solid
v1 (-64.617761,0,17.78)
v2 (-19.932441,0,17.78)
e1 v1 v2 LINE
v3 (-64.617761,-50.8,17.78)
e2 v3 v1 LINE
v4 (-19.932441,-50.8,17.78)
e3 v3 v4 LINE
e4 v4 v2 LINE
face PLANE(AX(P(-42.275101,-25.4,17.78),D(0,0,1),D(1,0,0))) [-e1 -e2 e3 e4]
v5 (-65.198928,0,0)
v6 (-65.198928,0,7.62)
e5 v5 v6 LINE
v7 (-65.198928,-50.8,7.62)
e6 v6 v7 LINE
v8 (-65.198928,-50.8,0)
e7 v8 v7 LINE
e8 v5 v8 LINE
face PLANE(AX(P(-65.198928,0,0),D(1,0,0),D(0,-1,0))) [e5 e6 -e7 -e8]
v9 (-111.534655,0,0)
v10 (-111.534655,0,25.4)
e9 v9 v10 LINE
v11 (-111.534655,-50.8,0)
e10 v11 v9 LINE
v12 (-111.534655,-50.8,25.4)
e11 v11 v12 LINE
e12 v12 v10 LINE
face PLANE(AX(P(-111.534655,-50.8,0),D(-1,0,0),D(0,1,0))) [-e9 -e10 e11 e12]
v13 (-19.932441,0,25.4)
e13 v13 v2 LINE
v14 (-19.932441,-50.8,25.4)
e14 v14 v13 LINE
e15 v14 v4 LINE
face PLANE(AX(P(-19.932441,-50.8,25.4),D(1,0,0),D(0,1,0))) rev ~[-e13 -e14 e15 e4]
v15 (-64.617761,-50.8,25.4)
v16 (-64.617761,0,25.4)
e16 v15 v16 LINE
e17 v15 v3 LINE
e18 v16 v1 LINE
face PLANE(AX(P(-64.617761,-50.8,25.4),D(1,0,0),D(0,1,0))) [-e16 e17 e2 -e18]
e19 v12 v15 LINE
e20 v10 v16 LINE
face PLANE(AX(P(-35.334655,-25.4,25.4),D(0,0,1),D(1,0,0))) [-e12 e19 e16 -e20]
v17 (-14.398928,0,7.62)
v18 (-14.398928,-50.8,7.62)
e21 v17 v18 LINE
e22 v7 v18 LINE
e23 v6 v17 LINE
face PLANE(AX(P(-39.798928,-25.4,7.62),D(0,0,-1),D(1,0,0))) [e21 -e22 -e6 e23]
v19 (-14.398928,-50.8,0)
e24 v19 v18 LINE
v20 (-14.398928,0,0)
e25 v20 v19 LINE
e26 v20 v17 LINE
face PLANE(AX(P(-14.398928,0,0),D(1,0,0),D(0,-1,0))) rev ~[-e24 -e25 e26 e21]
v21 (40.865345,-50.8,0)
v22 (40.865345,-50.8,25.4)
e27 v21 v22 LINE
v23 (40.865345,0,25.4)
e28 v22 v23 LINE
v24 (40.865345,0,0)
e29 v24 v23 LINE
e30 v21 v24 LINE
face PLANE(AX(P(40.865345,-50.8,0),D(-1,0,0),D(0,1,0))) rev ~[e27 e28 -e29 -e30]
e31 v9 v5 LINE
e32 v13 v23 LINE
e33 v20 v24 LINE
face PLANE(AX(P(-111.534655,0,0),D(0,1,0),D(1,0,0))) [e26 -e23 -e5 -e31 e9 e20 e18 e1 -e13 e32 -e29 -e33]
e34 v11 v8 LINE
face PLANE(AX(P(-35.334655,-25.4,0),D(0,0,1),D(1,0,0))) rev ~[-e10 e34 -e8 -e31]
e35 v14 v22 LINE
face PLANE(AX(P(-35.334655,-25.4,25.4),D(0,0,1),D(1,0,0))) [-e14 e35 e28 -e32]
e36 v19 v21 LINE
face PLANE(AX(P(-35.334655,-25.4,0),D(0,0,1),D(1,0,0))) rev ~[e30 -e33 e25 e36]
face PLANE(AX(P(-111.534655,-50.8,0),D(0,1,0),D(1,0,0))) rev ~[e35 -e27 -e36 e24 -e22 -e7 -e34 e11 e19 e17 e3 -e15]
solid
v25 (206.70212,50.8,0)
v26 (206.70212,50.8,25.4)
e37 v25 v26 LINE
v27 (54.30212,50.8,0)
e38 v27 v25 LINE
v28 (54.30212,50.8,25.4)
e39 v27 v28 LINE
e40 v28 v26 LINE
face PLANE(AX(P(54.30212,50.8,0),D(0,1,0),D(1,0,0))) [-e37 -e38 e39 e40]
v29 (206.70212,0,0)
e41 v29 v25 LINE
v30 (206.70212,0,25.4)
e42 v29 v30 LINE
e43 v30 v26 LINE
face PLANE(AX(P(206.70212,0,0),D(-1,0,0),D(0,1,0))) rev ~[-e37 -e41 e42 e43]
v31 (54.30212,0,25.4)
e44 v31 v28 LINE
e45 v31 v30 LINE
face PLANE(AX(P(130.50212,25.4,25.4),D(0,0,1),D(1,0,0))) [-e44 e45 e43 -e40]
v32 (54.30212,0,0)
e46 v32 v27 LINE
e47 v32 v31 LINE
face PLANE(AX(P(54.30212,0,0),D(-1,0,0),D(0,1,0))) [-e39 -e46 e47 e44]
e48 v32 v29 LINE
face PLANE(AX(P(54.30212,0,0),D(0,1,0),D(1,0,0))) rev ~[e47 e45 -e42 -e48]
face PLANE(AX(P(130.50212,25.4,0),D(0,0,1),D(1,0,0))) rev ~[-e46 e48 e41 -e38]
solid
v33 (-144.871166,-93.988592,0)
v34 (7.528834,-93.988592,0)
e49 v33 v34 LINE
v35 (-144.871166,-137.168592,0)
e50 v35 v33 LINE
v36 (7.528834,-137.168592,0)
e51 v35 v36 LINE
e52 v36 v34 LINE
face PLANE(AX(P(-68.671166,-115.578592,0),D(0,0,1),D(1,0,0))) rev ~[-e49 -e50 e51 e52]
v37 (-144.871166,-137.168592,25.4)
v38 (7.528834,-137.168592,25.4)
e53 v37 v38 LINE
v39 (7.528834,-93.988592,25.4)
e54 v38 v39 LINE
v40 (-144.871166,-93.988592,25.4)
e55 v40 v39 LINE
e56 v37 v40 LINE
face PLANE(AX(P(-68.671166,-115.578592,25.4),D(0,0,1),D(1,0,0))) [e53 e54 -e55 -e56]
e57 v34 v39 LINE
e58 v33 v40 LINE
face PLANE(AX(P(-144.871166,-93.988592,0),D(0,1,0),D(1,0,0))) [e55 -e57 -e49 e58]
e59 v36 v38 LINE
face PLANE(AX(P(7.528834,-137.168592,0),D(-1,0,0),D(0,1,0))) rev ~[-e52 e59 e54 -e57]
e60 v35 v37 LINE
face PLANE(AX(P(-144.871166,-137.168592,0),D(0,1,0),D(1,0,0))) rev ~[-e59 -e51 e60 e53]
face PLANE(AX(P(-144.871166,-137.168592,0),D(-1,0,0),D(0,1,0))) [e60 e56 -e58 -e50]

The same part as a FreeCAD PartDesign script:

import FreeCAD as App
import Part
import Sketcher
from FreeCAD import Vector
Q = App.Units.Quantity


def add_polygon(sketch, points):
    """Adds a closed chain of lines whose ends are joined by coincident constraints."""
    first, n = sketch.GeometryCount, len(points)
    for a, b in zip(points, points[1:] + points[:1]):
        sketch.addGeometry(Part.LineSegment(App.Vector(*a, 0), App.Vector(*b, 0)), False)
    for i in range(n):
        sketch.addConstraint(Sketcher.Constraint("Coincident", first + i, 2, first + (i + 1) % n, 1))

doc = App.newDocument("Part")
body = doc.addObject("PartDesign::Body", "Body")

sketch1 = body.newObject("Sketcher::SketchObject", "Sketch")
sketch1.AttachmentSupport = (doc.getObject("XY_Plane"), [""])
sketch1.MapMode = "FlatFace"
add_polygon(sketch1, [(-112, 0), (-112, -51), (41, -51), (41, 0)])
sketch1.addConstraint(Sketcher.Constraint("Vertical", 0))
sketch1.addConstraint(Sketcher.Constraint("Horizontal", 1))
sketch1.addConstraint(Sketcher.Constraint("Vertical", 2))
sketch1.addConstraint(Sketcher.Constraint("Horizontal", 3))
sketch1.addConstraint(Sketcher.Constraint("PointOnObject", 2, 2, -1))
sketch1.addConstraint(Sketcher.Constraint("DistanceX", 1, 1, 1, 2, Q("6 in")))
sketch1.addConstraint(Sketcher.Constraint("DistanceY", 0, 2, 0, 1, Q("2 in")))
sketch1.addConstraint(Sketcher.Constraint("DistanceX", 0, 2, -1, 1, 111.534655))
pad1 = body.newObject("PartDesign::Pad", "Pad")
pad1.Profile = sketch1
pad1.Length = Q("1 in")

sketch2 = body.newObject("Sketcher::SketchObject", "Sketch001")
sketch2.AttachmentSupport = (doc.getObject("XY_Plane"), [""])
sketch2.MapMode = "FlatFace"
sketch2.AttachmentOffset = App.Placement(Vector(0, 0, 1 * 25.4), App.Rotation())
add_polygon(sketch2, [(-65, 0), (-65, -51), (-20, -51), (-20, 0)])
sketch2.addConstraint(Sketcher.Constraint("Vertical", 0))
sketch2.addConstraint(Sketcher.Constraint("Horizontal", 1))
sketch2.addConstraint(Sketcher.Constraint("Vertical", 2))
sketch2.addConstraint(Sketcher.Constraint("Horizontal", 3))
sketch2.addConstraint(Sketcher.Constraint("PointOnObject", 2, 2, -1))
sketch2.addConstraint(Sketcher.Constraint("DistanceY", 0, 2, 0, 1, Q("2 in")))
sketch2.addConstraint(Sketcher.Constraint("DistanceX", 1, 1, 1, 2, 44.685319))
sketch2.addConstraint(Sketcher.Constraint("DistanceX", 0, 2, -1, 1, 64.617761))
pocket1 = body.newObject("PartDesign::Pocket", "Pocket")
pocket1.Profile = sketch2
pocket1.Length = Q("0.3 in")

sketch3 = body.newObject("Sketcher::SketchObject", "Sketch002")
sketch3.AttachmentSupport = (doc.getObject("XY_Plane"), [""])
sketch3.MapMode = "FlatFace"
add_polygon(sketch3, [(-65, -51), (-65, 0), (-14, 0), (-14, -51)])
sketch3.addConstraint(Sketcher.Constraint("Vertical", 0))
sketch3.addConstraint(Sketcher.Constraint("Horizontal", 1))
sketch3.addConstraint(Sketcher.Constraint("Vertical", 2))
sketch3.addConstraint(Sketcher.Constraint("Horizontal", 3))
sketch3.addConstraint(Sketcher.Constraint("PointOnObject", 0, 2, -1))
sketch3.addConstraint(Sketcher.Constraint("Equal", 3, 0))
sketch3.addConstraint(Sketcher.Constraint("DistanceX", 1, 1, 1, 2, Q("2 in")))
sketch3.addConstraint(Sketcher.Constraint("DistanceX", 0, 2, -1, 1, 65.198928))
pocket2 = body.newObject("PartDesign::Pocket", "Pocket001")
pocket2.Profile = sketch3
pocket2.Length = Q("0.3 in")
pocket2.Reversed = True
body2 = doc.addObject("PartDesign::Body", "Body001")

sketch4 = body2.newObject("Sketcher::SketchObject", "Sketch003")
sketch4.AttachmentSupport = (doc.getObject("XY_Plane001"), [""])
sketch4.MapMode = "FlatFace"
add_polygon(sketch4, [(-145, -94), (-145, -137), (8, -137), (8, -94)])
sketch4.addConstraint(Sketcher.Constraint("Vertical", 0))
sketch4.addConstraint(Sketcher.Constraint("Horizontal", 1))
sketch4.addConstraint(Sketcher.Constraint("Vertical", 2))
sketch4.addConstraint(Sketcher.Constraint("Horizontal", 3))
sketch4.addConstraint(Sketcher.Constraint("DistanceX", 1, 1, 1, 2, Q("6 in")))
sketch4.addConstraint(Sketcher.Constraint("DistanceY", 0, 2, 0, 1, Q("1.7 in")))
sketch4.addConstraint(Sketcher.Constraint("DistanceY", 0, 2, -1, 1, 137.168592))
sketch4.addConstraint(Sketcher.Constraint("DistanceX", 0, 2, -1, 1, 144.871166))
pad2 = body2.newObject("PartDesign::Pad", "Pad001")
pad2.Profile = sketch4
pad2.Length = Q("1 in")
body3 = doc.addObject("PartDesign::Body", "Body002")

sketch5 = body3.newObject("Sketcher::SketchObject", "Sketch004")
sketch5.AttachmentSupport = (doc.getObject("XY_Plane002"), [""])
sketch5.MapMode = "FlatFace"
add_polygon(sketch5, [(54, 51), (54, 0), (207, 0), (207, 51)])
sketch5.addConstraint(Sketcher.Constraint("Vertical", 0))
sketch5.addConstraint(Sketcher.Constraint("Horizontal", 1))
sketch5.addConstraint(Sketcher.Constraint("Vertical", 2))
sketch5.addConstraint(Sketcher.Constraint("Horizontal", 3))
sketch5.addConstraint(Sketcher.Constraint("PointOnObject", 0, 2, -1))
sketch5.addConstraint(Sketcher.Constraint("DistanceX", 1, 1, 1, 2, Q("6 in")))
sketch5.addConstraint(Sketcher.Constraint("DistanceY", 0, 2, 0, 1, Q("2 in")))
sketch5.addConstraint(Sketcher.Constraint("DistanceX", -1, 1, 0, 2, 54.30212))
pad3 = body3.newObject("PartDesign::Pad", "Pad002")
pad3.Profile = sketch5
pad3.Length = Q("1 in")

doc.recompute()
